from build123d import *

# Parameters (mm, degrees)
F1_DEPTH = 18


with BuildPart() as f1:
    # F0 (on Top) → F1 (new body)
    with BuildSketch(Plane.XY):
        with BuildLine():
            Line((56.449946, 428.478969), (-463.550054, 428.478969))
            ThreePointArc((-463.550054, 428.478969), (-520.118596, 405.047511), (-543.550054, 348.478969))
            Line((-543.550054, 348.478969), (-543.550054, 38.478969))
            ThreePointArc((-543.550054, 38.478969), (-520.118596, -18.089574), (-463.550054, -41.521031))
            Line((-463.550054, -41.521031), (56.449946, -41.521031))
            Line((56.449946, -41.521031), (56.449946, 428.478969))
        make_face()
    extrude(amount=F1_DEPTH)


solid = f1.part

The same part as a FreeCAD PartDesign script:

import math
import FreeCAD as App
import Part
import Sketcher

doc = App.newDocument("Part")
body = doc.addObject("PartDesign::Body", "Body")

# Sketch on XY plane
sketch1 = body.newObject("Sketcher::SketchObject", "Sketch")
sketch1.AttachmentSupport = (doc.getObject("XY_Plane"), [""])
sketch1.MapMode = "FlatFace"
sketch1.addGeometry(Part.LineSegment(App.Vector(56, 428, 0), App.Vector(-464, 428, 0)), False)
sketch1.addGeometry(Part.ArcOfCircle(Part.Circle(App.Vector(-464, 348, 0), App.Vector(0, 0, 1), 80), math.radians(90), math.radians(180)), False)
sketch1.addGeometry(Part.LineSegment(App.Vector(-544, 348, 0), App.Vector(-544, 38, 0)), False)
sketch1.addGeometry(Part.ArcOfCircle(Part.Circle(App.Vector(-464, 38, 0), App.Vector(0, 0, 1), 80), math.radians(180), math.radians(270)), False)
sketch1.addGeometry(Part.LineSegment(App.Vector(-464, -42, 0), App.Vector(56, -42, 0)), False)
sketch1.addGeometry(Part.LineSegment(App.Vector(56, -42, 0), App.Vector(56, 428, 0)), False)
sketch1.addConstraint(Sketcher.Constraint("Tangent", 0, 2, 1, 1))
sketch1.addConstraint(Sketcher.Constraint("Tangent", 1, 2, 2, 1))
sketch1.addConstraint(Sketcher.Constraint("Tangent", 2, 2, 3, 1))
sketch1.addConstraint(Sketcher.Constraint("Tangent", 3, 2, 4, 1))
sketch1.addConstraint(Sketcher.Constraint("Coincident", 4, 2, 5, 1))
sketch1.addConstraint(Sketcher.Constraint("Coincident", 5, 2, 0, 1))
sketch1.addConstraint(Sketcher.Constraint("Horizontal", 0))
sketch1.addConstraint(Sketcher.Constraint("Vertical", 2))
sketch1.addConstraint(Sketcher.Constraint("Horizontal", 4))
sketch1.addConstraint(Sketcher.Constraint("Vertical", 5))
sketch1.addConstraint(Sketcher.Constraint("Equal", 1, 3))
sketch1.addConstraint(Sketcher.Constraint("Radius", 1, 80.000002))
sketch1.addConstraint(Sketcher.Constraint("DistanceX", 0, 2, 0, 1, 520.0))
sketch1.addConstraint(Sketcher.Constraint("DistanceY", 2, 2, 2, 1, 310.0))
sketch1.addConstraint(Sketcher.Constraint("DistanceY", -1, 1, 3, 3, 38.478969))
sketch1.addConstraint(Sketcher.Constraint("DistanceX", 1, 3, -1, 1, 463.550052))
pad1 = body.newObject("PartDesign::Pad", "Pad")
pad1.Profile = sketch1
pad1.Length = 18

doc.recompute()
